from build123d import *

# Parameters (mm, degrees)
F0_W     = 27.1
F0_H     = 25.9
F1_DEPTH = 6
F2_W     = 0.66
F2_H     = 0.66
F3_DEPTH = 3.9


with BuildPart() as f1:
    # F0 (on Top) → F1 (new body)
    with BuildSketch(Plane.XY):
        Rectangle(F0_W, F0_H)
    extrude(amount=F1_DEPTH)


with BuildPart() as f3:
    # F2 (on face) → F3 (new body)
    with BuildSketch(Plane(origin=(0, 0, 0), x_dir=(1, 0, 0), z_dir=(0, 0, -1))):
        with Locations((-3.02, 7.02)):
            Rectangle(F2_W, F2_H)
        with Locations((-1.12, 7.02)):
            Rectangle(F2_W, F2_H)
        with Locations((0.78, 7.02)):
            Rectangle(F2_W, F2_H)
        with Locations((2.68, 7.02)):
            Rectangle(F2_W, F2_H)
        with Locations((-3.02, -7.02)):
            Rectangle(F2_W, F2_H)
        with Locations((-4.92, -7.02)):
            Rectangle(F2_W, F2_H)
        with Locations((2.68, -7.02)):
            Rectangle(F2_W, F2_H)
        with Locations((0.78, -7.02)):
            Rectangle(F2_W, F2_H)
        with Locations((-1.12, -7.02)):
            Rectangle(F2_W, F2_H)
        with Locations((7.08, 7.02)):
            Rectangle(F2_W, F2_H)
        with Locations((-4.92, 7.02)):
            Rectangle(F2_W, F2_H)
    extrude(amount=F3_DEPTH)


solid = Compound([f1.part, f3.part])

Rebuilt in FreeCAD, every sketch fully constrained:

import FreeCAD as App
import Part
import Sketcher
Q = App.Units.Quantity

doc = App.newDocument("Part")
body = doc.addObject("PartDesign::Body", "Body")

# Sketch on XY plane
sketch1 = body.newObject("Sketcher::SketchObject", "Sketch")
sketch1.AttachmentSupport = (doc.getObject("XY_Plane"), [""])
sketch1.MapMode = "FlatFace"
sketch1.addGeometry([
    Part.LineSegment(App.Vector(-14, 13, 0), App.Vector(-14, -13, 0)),
    Part.LineSegment(App.Vector(-14, -13, 0), App.Vector(14, -13, 0)),
    Part.LineSegment(App.Vector(14, -13, 0), App.Vector(14, 13, 0)),
    Part.LineSegment(App.Vector(14, 13, 0), App.Vector(-14, 13, 0)),
], False)
sketch1.addConstraint([
    Sketcher.Constraint("Coincident", 0, 2, 1, 1),
    Sketcher.Constraint("Coincident", 1, 2, 2, 1),
    Sketcher.Constraint("Coincident", 2, 2, 3, 1),
    Sketcher.Constraint("Coincident", 3, 2, 0, 1),
    Sketcher.Constraint("Vertical", 0),
    Sketcher.Constraint("Horizontal", 1),
    Sketcher.Constraint("Vertical", 2),
    Sketcher.Constraint("Horizontal", 3),
    Sketcher.Constraint("Symmetric", 0, 2, 2, 2, -1, 1),
    Sketcher.Constraint("DistanceX", 1, 1, 1, 2, Q("27.1 mm")),
    Sketcher.Constraint("DistanceY", 0, 2, 0, 1, Q("25.9 mm")),
])
pad1 = body.newObject("PartDesign::Pad", "Pad")
pad1.Profile = sketch1
pad1.Length = 6
body2 = doc.addObject("PartDesign::Body", "Body001")
body2.AllowCompound = True

# Sketch on XY plane
sketch2 = body2.newObject("Sketcher::SketchObject", "Sketch001")
sketch2.AttachmentSupport = (doc.getObject("XY_Plane001"), [""])
sketch2.MapMode = "FlatFace"
sketch2.addGeometry([
    Part.LineSegment(App.Vector(-3.4, -7.3, 0), App.Vector(-3.4, -6.7, 0)),  # 0
    Part.LineSegment(App.Vector(-3.4, -6.7, 0), App.Vector(-2.7, -6.7, 0)),  # 1
    Part.LineSegment(App.Vector(-2.7, -6.7, 0), App.Vector(-2.7, -7.3, 0)),  # 2
    Part.LineSegment(App.Vector(-2.7, -7.3, 0), App.Vector(-3.4, -7.3, 0)),  # 3
    Part.LineSegment(App.Vector(-1.4, -7.3, 0), App.Vector(-1.4, -6.7, 0)),  # 4
    Part.LineSegment(App.Vector(-1.4, -6.7, 0), App.Vector(-0.8, -6.7, 0)),  # 5
    Part.LineSegment(App.Vector(-0.8, -6.7, 0), App.Vector(-0.8, -7.3, 0)),  # 6
    Part.LineSegment(App.Vector(-0.8, -7.3, 0), App.Vector(-1.4, -7.3, 0)),  # 7
    Part.LineSegment(App.Vector(0.5, -7.3, 0), App.Vector(0.5, -6.7, 0)),  # 8
    Part.LineSegment(App.Vector(0.5, -6.7, 0), App.Vector(1.1, -6.7, 0)),  # 9
    Part.LineSegment(App.Vector(1.1, -6.7, 0), App.Vector(1.1, -7.3, 0)),  # 10
    Part.LineSegment(App.Vector(1.1, -7.3, 0), App.Vector(0.5, -7.3, 0)),  # 11
    Part.LineSegment(App.Vector(2.4, -7.3, 0), App.Vector(2.4, -6.7, 0)),  # 12
    Part.LineSegment(App.Vector(2.4, -6.7, 0), App.Vector(3, -6.7, 0)),  # 13
    Part.LineSegment(App.Vector(3, -6.7, 0), App.Vector(3, -7.3, 0)),  # 14
    Part.LineSegment(App.Vector(3, -7.3, 0), App.Vector(2.4, -7.3, 0)),  # 15
    Part.LineSegment(App.Vector(-3.4, 6.7, 0), App.Vector(-3.4, 7.3, 0)),  # 16
    Part.LineSegment(App.Vector(-3.4, 7.3, 0), App.Vector(-2.7, 7.3, 0)),  # 17
    Part.LineSegment(App.Vector(-2.7, 7.3, 0), App.Vector(-2.7, 6.7, 0)),  # 18
    Part.LineSegment(App.Vector(-2.7, 6.7, 0), App.Vector(-3.4, 6.7, 0)),  # 19
    Part.LineSegment(App.Vector(-5.2, 6.7, 0), App.Vector(-5.2, 7.3, 0)),  # 20
    Part.LineSegment(App.Vector(-5.2, 7.3, 0), App.Vector(-4.6, 7.3, 0)),  # 21
    Part.LineSegment(App.Vector(-4.6, 7.3, 0), App.Vector(-4.6, 6.7, 0)),  # 22
    Part.LineSegment(App.Vector(-4.6, 6.7, 0), App.Vector(-5.2, 6.7, 0)),  # 23
    Part.LineSegment(App.Vector(2.4, 6.7, 0), App.Vector(2.4, 7.3, 0)),  # 24
    Part.LineSegment(App.Vector(2.4, 7.3, 0), App.Vector(3, 7.3, 0)),  # 25
    Part.LineSegment(App.Vector(3, 7.3, 0), App.Vector(3, 6.7, 0)),  # 26
    Part.LineSegment(App.Vector(3, 6.7, 0), App.Vector(2.4, 6.7, 0)),  # 27
    Part.LineSegment(App.Vector(0.5, 6.7, 0), App.Vector(0.5, 7.3, 0)),  # 28
    Part.LineSegment(App.Vector(0.5, 7.3, 0), App.Vector(1.1, 7.3, 0)),  # 29
    Part.LineSegment(App.Vector(1.1, 7.3, 0), App.Vector(1.1, 6.7, 0)),  # 30
    Part.LineSegment(App.Vector(1.1, 6.7, 0), App.Vector(0.5, 6.7, 0)),  # 31
    Part.LineSegment(App.Vector(-1.4, 6.7, 0), App.Vector(-1.4, 7.3, 0)),  # 32
    Part.LineSegment(App.Vector(-1.4, 7.3, 0), App.Vector(-0.8, 7.3, 0)),  # 33
    Part.LineSegment(App.Vector(-0.8, 7.3, 0), App.Vector(-0.8, 6.7, 0)),  # 34
    Part.LineSegment(App.Vector(-0.8, 6.7, 0), App.Vector(-1.4, 6.7, 0)),  # 35
    Part.LineSegment(App.Vector(6.8, -7.3, 0), App.Vector(6.8, -6.7, 0)),  # 36
    Part.LineSegment(App.Vector(6.8, -6.7, 0), App.Vector(7.4, -6.7, 0)),  # 37
    Part.LineSegment(App.Vector(7.4, -6.7, 0), App.Vector(7.4, -7.3, 0)),  # 38
    Part.LineSegment(App.Vector(7.4, -7.3, 0), App.Vector(6.8, -7.3, 0)),  # 39
    Part.LineSegment(App.Vector(-5.2, -7.3, 0), App.Vector(-5.2, -6.7, 0)),  # 40
    Part.LineSegment(App.Vector(-5.2, -6.7, 0), App.Vector(-4.6, -6.7, 0)),  # 41
    Part.LineSegment(App.Vector(-4.6, -6.7, 0), App.Vector(-4.6, -7.3, 0)),  # 42
    Part.LineSegment(App.Vector(-4.6, -7.3, 0), App.Vector(-5.2, -7.3, 0)),  # 43
], False)
sketch2.addConstraint([
    Sketcher.Constraint("Coincident", 0, 2, 1, 1),
    Sketcher.Constraint("Coincident", 1, 2, 2, 1),
    Sketcher.Constraint("Coincident", 2, 2, 3, 1),
    Sketcher.Constraint("Coincident", 3, 2, 0, 1),
    Sketcher.Constraint("Coincident", 4, 2, 5, 1),
    Sketcher.Constraint("Coincident", 5, 2, 6, 1),
    Sketcher.Constraint("Coincident", 6, 2, 7, 1),
    Sketcher.Constraint("Coincident", 7, 2, 4, 1),
    Sketcher.Constraint("Coincident", 8, 2, 9, 1),
    Sketcher.Constraint("Coincident", 9, 2, 10, 1),
    Sketcher.Constraint("Coincident", 10, 2, 11, 1),
    Sketcher.Constraint("Coincident", 11, 2, 8, 1),
    Sketcher.Constraint("Coincident", 12, 2, 13, 1),
    Sketcher.Constraint("Coincident", 13, 2, 14, 1),
    Sketcher.Constraint("Coincident", 14, 2, 15, 1),
    Sketcher.Constraint("Coincident", 15, 2, 12, 1),
    Sketcher.Constraint("Coincident", 16, 2, 17, 1),
    Sketcher.Constraint("Coincident", 17, 2, 18, 1),
    Sketcher.Constraint("Coincident", 18, 2, 19, 1),
    Sketcher.Constraint("Coincident", 19, 2, 16, 1),
    Sketcher.Constraint("Coincident", 20, 2, 21, 1),
    Sketcher.Constraint("Coincident", 21, 2, 22, 1),
    Sketcher.Constraint("Coincident", 22, 2, 23, 1),
    Sketcher.Constraint("Coincident", 23, 2, 20, 1),
    Sketcher.Constraint("Coincident", 24, 2, 25, 1),
    Sketcher.Constraint("Coincident", 25, 2, 26, 1),
    Sketcher.Constraint("Coincident", 26, 2, 27, 1),
    Sketcher.Constraint("Coincident", 27, 2, 24, 1),
    Sketcher.Constraint("Coincident", 28, 2, 29, 1),
    Sketcher.Constraint("Coincident", 29, 2, 30, 1),
    Sketcher.Constraint("Coincident", 30, 2, 31, 1),
    Sketcher.Constraint("Coincident", 31, 2, 28, 1),
    Sketcher.Constraint("Coincident", 32, 2, 33, 1),
    Sketcher.Constraint("Coincident", 33, 2, 34, 1),
    Sketcher.Constraint("Coincident", 34, 2, 35, 1),
    Sketcher.Constraint("Coincident", 35, 2, 32, 1),
    Sketcher.Constraint("Coincident", 36, 2, 37, 1),
    Sketcher.Constraint("Coincident", 37, 2, 38, 1),
    Sketcher.Constraint("Coincident", 38, 2, 39, 1),
    Sketcher.Constraint("Coincident", 39, 2, 36, 1),
    Sketcher.Constraint("Coincident", 40, 2, 41, 1),
    Sketcher.Constraint("Coincident", 41, 2, 42, 1),
    Sketcher.Constraint("Coincident", 42, 2, 43, 1),
    Sketcher.Constraint("Coincident", 43, 2, 40, 1),
    Sketcher.Constraint("Vertical", 0),
    Sketcher.Constraint("Horizontal", 1),
    Sketcher.Constraint("Vertical", 2),
    Sketcher.Constraint("Horizontal", 3),
    Sketcher.Constraint("Vertical", 4),
    Sketcher.Constraint("Horizontal", 5),
    Sketcher.Constraint("Vertical", 6),
    Sketcher.Constraint("Horizontal", 7),
    Sketcher.Constraint("Vertical", 8),
    Sketcher.Constraint("Horizontal", 9),
    Sketcher.Constraint("Vertical", 10),
    Sketcher.Constraint("Horizontal", 11),
    Sketcher.Constraint("Vertical", 12),
    Sketcher.Constraint("Horizontal", 13),
    Sketcher.Constraint("Vertical", 14),
    Sketcher.Constraint("Horizontal", 15),
    Sketcher.Constraint("Vertical", 16),
    Sketcher.Constraint("Horizontal", 17),
    Sketcher.Constraint("Vertical", 18),
    Sketcher.Constraint("Horizontal", 19),
    Sketcher.Constraint("Vertical", 20),
    Sketcher.Constraint("Horizontal", 21),
    Sketcher.Constraint("Vertical", 22),
    Sketcher.Constraint("Horizontal", 23),
    Sketcher.Constraint("Vertical", 24),
    Sketcher.Constraint("Horizontal", 25),
    Sketcher.Constraint("Vertical", 26),
    Sketcher.Constraint("Horizontal", 27),
    Sketcher.Constraint("Vertical", 28),
    Sketcher.Constraint("Horizontal", 29),
    Sketcher.Constraint("Vertical", 30),
    Sketcher.Constraint("Horizontal", 31),
    Sketcher.Constraint("Vertical", 32),
    Sketcher.Constraint("Horizontal", 33),
    Sketcher.Constraint("Vertical", 34),
    Sketcher.Constraint("Horizontal", 35),
    Sketcher.Constraint("Vertical", 36),
    Sketcher.Constraint("Horizontal", 37),
    Sketcher.Constraint("Vertical", 38),
    Sketcher.Constraint("Horizontal", 39),
    Sketcher.Constraint("Vertical", 40),
    Sketcher.Constraint("Horizontal", 41),
    Sketcher.Constraint("Vertical", 42),
    Sketcher.Constraint("Horizontal", 43),
    Sketcher.Constraint("Symmetric", 3, 2, 16, 2, -1),
    Sketcher.Constraint("Symmetric", 1, 2, 18, 2, -1),
    Sketcher.Constraint("Symmetric", 15, 2, 24, 2, -1),
    Sketcher.Constraint("Symmetric", 13, 2, 26, 2, -1),
    Sketcher.Constraint("Symmetric", 11, 2, 28, 2, -1),
    Sketcher.Constraint("Symmetric", 9, 2, 30, 2, -1),
    Sketcher.Constraint("Symmetric", 7, 2, 32, 2, -1),
    Sketcher.Constraint("Symmetric", 5, 2, 34, 2, -1),
    Sketcher.Constraint("Symmetric", 23, 2, 40, 2, -1),
    Sketcher.Constraint("Symmetric", 21, 2, 42, 2, -1),
    Sketcher.Constraint("Horizontal", 1, 2, 4, 2),
    Sketcher.Constraint("Horizontal", 3, 2, 6, 2),
    Sketcher.Constraint("Horizontal", 5, 2, 8, 2),
    Sketcher.Constraint("Horizontal", 7, 2, 10, 2),
    Sketcher.Constraint("Horizontal", 9, 2, 12, 2),
    Sketcher.Constraint("Horizontal", 11, 2, 14, 2),
    Sketcher.Constraint("Horizontal", 17, 2, 20, 2),
    Sketcher.Constraint("Horizontal", 19, 2, 22, 2),
    Sketcher.Constraint("Horizontal", 13, 2, 36, 2),
    Sketcher.Constraint("Horizontal", 15, 2, 38, 2),
    Sketcher.Constraint("Equal", 3, 5),
    Sketcher.Constraint("Equal", 7, 9),
    Sketcher.Constraint("Equal", 11, 13),
    Sketcher.Constraint("Equal", 19, 21),
    Sketcher.Constraint("Equal", 35, 37),
    Sketcher.Constraint("Equal", 43, 0),
    Sketcher.Constraint("DistanceX", 1, 1, 1, 2, Q("0.66 mm")),
    Sketcher.Constraint("DistanceX", 0, 2, 4, 2, Q("1.9 mm")),
    Sketcher.Constraint("DistanceX", 4, 2, 8, 2, Q("1.9 mm")),
    Sketcher.Constraint("DistanceX", 8, 2, 12, 2, Q("1.9 mm")),
    Sketcher.Constraint("DistanceX", 20, 2, 16, 2, Q("1.9 mm")),
    Sketcher.Constraint("DistanceX", 12, 2, 36, 2, Q("4.4 mm")),
    Sketcher.Constraint("DistanceX", 0, 2, -1, 1, Q("3.35 mm")),
    Sketcher.Constraint("DistanceY", 0, 2, -1, 1, Q("6.69 mm")),
])
pad2 = body2.newObject("PartDesign::Pad", "Pad001")
pad2.Profile = sketch2
pad2.Length = 3.9
pad2.Reversed = True

doc.recompute()
